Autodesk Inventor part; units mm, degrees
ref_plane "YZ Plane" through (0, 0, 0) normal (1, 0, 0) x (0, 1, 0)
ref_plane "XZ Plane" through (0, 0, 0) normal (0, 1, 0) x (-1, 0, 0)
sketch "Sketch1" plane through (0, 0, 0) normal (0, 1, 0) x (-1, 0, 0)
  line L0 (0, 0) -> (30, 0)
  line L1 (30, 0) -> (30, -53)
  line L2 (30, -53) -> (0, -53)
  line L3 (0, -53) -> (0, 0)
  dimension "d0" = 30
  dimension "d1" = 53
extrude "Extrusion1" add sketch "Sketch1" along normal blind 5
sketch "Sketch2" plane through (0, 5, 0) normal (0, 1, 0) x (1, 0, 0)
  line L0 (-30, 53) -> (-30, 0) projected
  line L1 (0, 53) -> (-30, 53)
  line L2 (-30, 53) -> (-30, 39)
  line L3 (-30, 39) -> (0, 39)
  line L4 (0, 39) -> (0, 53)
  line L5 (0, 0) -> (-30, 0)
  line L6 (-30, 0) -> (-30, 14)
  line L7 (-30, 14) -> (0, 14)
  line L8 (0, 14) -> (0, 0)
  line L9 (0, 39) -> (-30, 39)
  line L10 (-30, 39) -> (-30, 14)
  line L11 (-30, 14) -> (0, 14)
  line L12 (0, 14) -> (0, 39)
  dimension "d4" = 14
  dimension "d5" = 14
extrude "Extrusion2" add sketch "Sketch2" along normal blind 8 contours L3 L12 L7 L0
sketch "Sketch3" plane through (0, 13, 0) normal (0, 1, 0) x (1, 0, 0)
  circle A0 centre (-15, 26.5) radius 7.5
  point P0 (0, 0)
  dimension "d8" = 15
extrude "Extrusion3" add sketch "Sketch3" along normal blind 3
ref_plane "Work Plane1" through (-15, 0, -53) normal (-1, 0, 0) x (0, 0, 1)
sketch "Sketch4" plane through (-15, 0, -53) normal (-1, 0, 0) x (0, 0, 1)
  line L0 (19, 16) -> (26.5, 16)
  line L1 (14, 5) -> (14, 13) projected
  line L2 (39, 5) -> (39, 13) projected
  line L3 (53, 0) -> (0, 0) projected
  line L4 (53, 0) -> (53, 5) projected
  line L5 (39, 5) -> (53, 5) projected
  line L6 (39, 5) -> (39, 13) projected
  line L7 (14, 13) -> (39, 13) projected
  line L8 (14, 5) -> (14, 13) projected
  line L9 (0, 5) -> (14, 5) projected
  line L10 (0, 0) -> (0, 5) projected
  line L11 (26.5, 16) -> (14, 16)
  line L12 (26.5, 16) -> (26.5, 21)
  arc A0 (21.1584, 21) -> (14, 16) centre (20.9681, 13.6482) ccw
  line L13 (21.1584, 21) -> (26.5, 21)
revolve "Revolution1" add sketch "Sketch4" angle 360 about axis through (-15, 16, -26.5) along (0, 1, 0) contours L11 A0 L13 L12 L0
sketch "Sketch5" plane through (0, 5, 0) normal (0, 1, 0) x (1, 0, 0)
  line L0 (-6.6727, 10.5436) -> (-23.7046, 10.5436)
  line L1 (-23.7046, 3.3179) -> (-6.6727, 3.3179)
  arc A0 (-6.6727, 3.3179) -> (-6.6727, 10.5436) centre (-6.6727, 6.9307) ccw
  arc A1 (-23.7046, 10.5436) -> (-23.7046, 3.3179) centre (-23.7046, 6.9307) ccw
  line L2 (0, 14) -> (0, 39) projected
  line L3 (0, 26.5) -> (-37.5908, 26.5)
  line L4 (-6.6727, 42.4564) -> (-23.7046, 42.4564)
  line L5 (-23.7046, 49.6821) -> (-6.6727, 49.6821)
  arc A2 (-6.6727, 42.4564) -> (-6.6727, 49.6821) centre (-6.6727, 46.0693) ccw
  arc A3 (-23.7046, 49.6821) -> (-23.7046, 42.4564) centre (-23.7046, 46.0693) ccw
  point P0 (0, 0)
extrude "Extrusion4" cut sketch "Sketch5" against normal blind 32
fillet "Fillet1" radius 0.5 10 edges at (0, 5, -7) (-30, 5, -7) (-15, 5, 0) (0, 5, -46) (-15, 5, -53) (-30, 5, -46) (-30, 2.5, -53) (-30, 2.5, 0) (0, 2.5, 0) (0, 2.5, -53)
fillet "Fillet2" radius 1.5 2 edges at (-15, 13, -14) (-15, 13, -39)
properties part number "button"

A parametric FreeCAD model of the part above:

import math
import FreeCAD as App
import Part
import Sketcher
from FreeCAD import Vector


def edges_at(feature, points):
    """Names of the edges that pass closest to the given points."""
    edges = feature.Shape.Edges
    near = lambda p: min(range(len(edges)), key=lambda i: edges[i].distToShape(Part.Vertex(*p))[0])
    return sorted({f"Edge{near(p) + 1}" for p in points})

doc = App.newDocument("Part")
params = doc.addObject("Spreadsheet::Sheet", "Params")
for row, (alias, value) in enumerate([
    ("sketch1_width", "30 mm"),
    ("sketch1_height", "53 mm"),
    ("pad1_length", "5 mm"),
    ("sketch2_width", "30 mm"),
    ("sketch2_height", "25 mm"),
    ("pad2_length", "8 mm"),
    ("sketch3_diameter", "15 mm"),
    ("pad3_length", "3 mm"),
    ("sketch4_width", "5 mm"),
    ("sketch4_height", "12.5 mm"),
    ("revolution_angle", "360 deg"),
    ("pocket1_length", "32 mm"),
    ("fillet_radius", "0.5 mm"),
    ("fillet2_radius", "1.5 mm"),
], start=1):
    params.set(f"A{row}", alias)
    params.set(f"B{row}", "=" + value)
    params.setAlias(f"B{row}", alias)

body = doc.addObject("PartDesign::Body", "Body")

# Sketch on XZ plane
sketch1 = body.newObject("Sketcher::SketchObject", "Sketch")
sketch1.AttachmentSupport = (doc.getObject("XZ_Plane"), [""])
sketch1.MapMode = "FlatFace"
sketch1.addGeometry([
    Part.LineSegment(Vector(-30, 0, 0), Vector(0, 0, 0)),
    Part.LineSegment(Vector(0, 0, 0), Vector(0, -53, 0)),
    Part.LineSegment(Vector(0, -53, 0), Vector(-30, -53, 0)),
    Part.LineSegment(Vector(-30, -53, 0), Vector(-30, 0, 0)),
], False)
sketch1.addConstraint([
    Sketcher.Constraint("Coincident", 0, 2, 1, 1),
    Sketcher.Constraint("Coincident", 1, 2, 2, 1),
    Sketcher.Constraint("Coincident", 2, 2, 3, 1),
    Sketcher.Constraint("Coincident", 3, 2, 0, 1),
    Sketcher.Constraint("Horizontal", 0),
    Sketcher.Constraint("Vertical", 1),
    Sketcher.Constraint("Horizontal", 2),
    Sketcher.Constraint("Vertical", 3),
    Sketcher.Constraint("Coincident", 0, 2, -1, 1),
    Sketcher.Constraint("DistanceX", 0, 1, 0, 2, 30.0),
    Sketcher.Constraint("DistanceY", 1, 2, 1, 1, 53.0),
])
sketch1.setExpression("Constraints[9]", "Params.sketch1_width")
sketch1.setExpression("Constraints[10]", "Params.sketch1_height")
pad1 = body.newObject("PartDesign::Pad", "Pad")
pad1.Profile = sketch1
pad1.setExpression("Length", "Params.pad1_length")
pad1.Reversed = True

# Sketch on XZ plane
sketch2 = body.newObject("Sketcher::SketchObject", "Sketch001")
sketch2.AttachmentSupport = (doc.getObject("XZ_Plane"), [""])
sketch2.MapMode = "FlatFace"
sketch2.AttachmentOffset = App.Placement(Vector(0, 0, -5), App.Rotation())
sketch2.addGeometry([
    Part.LineSegment(Vector(0, -39, 0), Vector(-30, -39, 0)),
    Part.LineSegment(Vector(-30, -39, 0), Vector(-30, -14, 0)),
    Part.LineSegment(Vector(-30, -14, 0), Vector(0, -14, 0)),
    Part.LineSegment(Vector(0, -14, 0), Vector(0, -39, 0)),
], False)
sketch2.addConstraint([
    Sketcher.Constraint("Coincident", 0, 2, 1, 1),
    Sketcher.Constraint("Coincident", 1, 2, 2, 1),
    Sketcher.Constraint("Coincident", 2, 2, 3, 1),
    Sketcher.Constraint("Coincident", 3, 2, 0, 1),
    Sketcher.Constraint("Horizontal", 0),
    Sketcher.Constraint("Vertical", 1),
    Sketcher.Constraint("Horizontal", 2),
    Sketcher.Constraint("Vertical", 3),
    Sketcher.Constraint("PointOnObject", 2, 2, -2),
    Sketcher.Constraint("DistanceY", 1, 2, -1, 1, 14.0),
    Sketcher.Constraint("DistanceX", 0, 2, 0, 1, 30.0),
    Sketcher.Constraint("DistanceY", 1, 1, 1, 2, 25.0),
])
sketch2.setExpression("Constraints[10]", "Params.sketch2_width")
sketch2.setExpression("Constraints[11]", "Params.sketch2_height")
pad2 = body.newObject("PartDesign::Pad", "Pad001")
pad2.Profile = sketch2
pad2.setExpression("Length", "Params.pad2_length")
pad2.Reversed = True

# Sketch on XZ plane
sketch3 = body.newObject("Sketcher::SketchObject", "Sketch002")
sketch3.AttachmentSupport = (doc.getObject("XZ_Plane"), [""])
sketch3.MapMode = "FlatFace"
sketch3.AttachmentOffset = App.Placement(Vector(0, 0, -13), App.Rotation())
sketch3.addGeometry(Part.Circle(Vector(-15, -26.5, 0), Vector(0, 0, 1), 7.5), False)
sketch3.addConstraint([
    Sketcher.Constraint("Diameter", 0, 15.0),
    Sketcher.Constraint("DistanceX", 0, 3, -1, 1, 15.0),
    Sketcher.Constraint("DistanceY", 0, 3, -1, 1, 26.5),
])
sketch3.setExpression("Constraints[0]", "Params.sketch3_diameter")
pad3 = body.newObject("PartDesign::Pad", "Pad002")
pad3.Profile = sketch3
pad3.setExpression("Length", "Params.pad3_length")
pad3.Reversed = True

# Sketch on YZ plane
sketch4 = body.newObject("Sketcher::SketchObject", "Sketch003")
sketch4.AttachmentSupport = (doc.getObject("YZ_Plane"), [""])
sketch4.MapMode = "FlatFace"
sketch4.AttachmentOffset = App.Placement(Vector(0, 0, -15), App.Rotation())
sketch4.addGeometry([
    Part.LineSegment(Vector(16, -39, 0), Vector(16, -26.5, 0)),
    Part.LineSegment(Vector(16, -26.5, 0), Vector(21, -26.5, 0)),
    Part.LineSegment(Vector(21, -26.5, 0), Vector(21, -31.8416, 0)),
    Part.ArcOfCircle(Part.Circle(Vector(13.6482, -32.0319, 0), Vector(0, 0, 1), 7.354263), math.radians(-71.349972), math.radians(1.48276)),
], False)
sketch4.addGeometry(Part.LineSegment(Vector(13.6482, -26.5, 0), Vector(21, -26.5, 0)), True)  # axis
sketch4.addConstraint([
    Sketcher.Constraint("Coincident", 0, 2, 1, 1),
    Sketcher.Constraint("Coincident", 1, 2, 2, 1),
    Sketcher.Constraint("Coincident", 2, 2, 3, 2),
    Sketcher.Constraint("Coincident", 3, 1, 0, 1),
    Sketcher.Constraint("Vertical", 0),
    Sketcher.Constraint("Horizontal", 1),
    Sketcher.Constraint("Vertical", 2),
    Sketcher.Constraint("Horizontal", 4),
    Sketcher.Constraint("Coincident", 4, 2, 1, 2),
    Sketcher.Constraint("Vertical", 3, 3, 4, 1),
    Sketcher.Constraint("DistanceX", 1, 1, 1, 2, 5.0),
    Sketcher.Constraint("DistanceY", 0, 1, 0, 2, 12.5),
    Sketcher.Constraint("DistanceX", -1, 1, 0, 2, 16.0),
    Sketcher.Constraint("DistanceY", 3, 1, -1, 1, 39.0),
    Sketcher.Constraint("Radius", 3, 7.3543),
    Sketcher.Constraint("DistanceX", 4, 1, 4, 2, 7.3518),
])
sketch4.setExpression("Constraints[10]", "Params.sketch4_width")
sketch4.setExpression("Constraints[11]", "Params.sketch4_height")
revolution = body.newObject("PartDesign::Revolution", "Revolution")
revolution.Profile = sketch4
revolution.ReferenceAxis = (sketch4, ["Axis0"])
revolution.setExpression("Angle", "Params.revolution_angle")

# Sketch on XZ plane
sketch5 = body.newObject("Sketcher::SketchObject", "Sketch004")
sketch5.AttachmentSupport = (doc.getObject("XZ_Plane"), [""])
sketch5.MapMode = "FlatFace"
sketch5.AttachmentOffset = App.Placement(Vector(0, 0, -5), App.Rotation())
sketch5.addGeometry([
    Part.ArcOfCircle(Part.Circle(Vector(-6.6727, -6.9307, 0), Vector(0, 0, 1), 3.6128), math.radians(-90), math.radians(90)),  # 0
    Part.LineSegment(Vector(-6.6727, -10.5436, 0), Vector(-23.7046, -10.5436, 0)),  # 1
    Part.ArcOfCircle(Part.Circle(Vector(-23.7046, -6.9307, 0), Vector(0, 0, 1), 3.6129), math.radians(90), math.radians(270)),  # 2
    Part.LineSegment(Vector(-23.7046, -3.3179, 0), Vector(-6.6727, -3.3179, 0)),  # 3
    Part.LineSegment(Vector(-23.7046, -42.4564, 0), Vector(-6.6727, -42.4564, 0)),  # 4
    Part.ArcOfCircle(Part.Circle(Vector(-6.6727, -46.0693, 0), Vector(0, 0, 1), 3.6129), math.radians(-90), math.radians(90)),  # 5
    Part.LineSegment(Vector(-6.6727, -49.6821, 0), Vector(-23.7046, -49.6821, 0)),  # 6
    Part.ArcOfCircle(Part.Circle(Vector(-23.7046, -46.0693, 0), Vector(0, 0, 1), 3.6128), math.radians(90), math.radians(270)),  # 7
], False)
sketch5.addConstraint([
    Sketcher.Constraint("Tangent", 0, 1, 1, 1),
    Sketcher.Constraint("Tangent", 1, 2, 2, 2),
    Sketcher.Constraint("Tangent", 2, 1, 3, 1),
    Sketcher.Constraint("Tangent", 3, 2, 0, 2),
    Sketcher.Constraint("Tangent", 4, 2, 5, 2),
    Sketcher.Constraint("Tangent", 5, 1, 6, 1),
    Sketcher.Constraint("Tangent", 6, 2, 7, 2),
    Sketcher.Constraint("Tangent", 7, 1, 4, 1),
    Sketcher.Constraint("Horizontal", 1),
    Sketcher.Constraint("Horizontal", 3),
    Sketcher.Constraint("Horizontal", 4),
    Sketcher.Constraint("Horizontal", 6),
    Sketcher.Constraint("Equal", 2, 5),
    Sketcher.Constraint("Vertical", 0, 3, 5, 3),
    Sketcher.Constraint("Vertical", 2, 3, 7, 3),
    Sketcher.Constraint("Radius", 2, 3.613),
    Sketcher.Constraint("DistanceX", 1, 2, 1, 1, 17.032),
    Sketcher.Constraint("DistanceY", 3, 2, -1, 1, 3.318),
    Sketcher.Constraint("DistanceY", 6, 2, -1, 1, 49.682),
    Sketcher.Constraint("DistanceX", 0, 3, -1, 1, 6.6727),
])
pocket1 = body.newObject("PartDesign::Pocket", "Pocket")
pocket1.Profile = sketch5
pocket1.setExpression("Length", "Params.pocket1_length")
pocket1.Reversed = True
doc.recompute()

fillet = body.newObject("PartDesign::Fillet", "Fillet")
fillet.Base = (pocket1, edges_at(pocket1, [
    (0, 5, -7),
    (-30, 5, -7),
    (-15, 5, 0),
    (0, 5, -46),
    (-15, 5, -53),
    (-30, 5, -46),
    (-30, 2.5, -53),
    (-30, 2.5, 0),
    (0, 2.5, 0),
    (0, 2.5, -53),
]))
fillet.setExpression("Radius", "Params.fillet_radius")
doc.recompute()

fillet2 = body.newObject("PartDesign::Fillet", "Fillet001")
fillet2.Base = (fillet, edges_at(fillet, [(-15, 13, -14), (-15, 13, -39)]))
fillet2.setExpression("Radius", "Params.fillet2_radius")

doc.recompute()
